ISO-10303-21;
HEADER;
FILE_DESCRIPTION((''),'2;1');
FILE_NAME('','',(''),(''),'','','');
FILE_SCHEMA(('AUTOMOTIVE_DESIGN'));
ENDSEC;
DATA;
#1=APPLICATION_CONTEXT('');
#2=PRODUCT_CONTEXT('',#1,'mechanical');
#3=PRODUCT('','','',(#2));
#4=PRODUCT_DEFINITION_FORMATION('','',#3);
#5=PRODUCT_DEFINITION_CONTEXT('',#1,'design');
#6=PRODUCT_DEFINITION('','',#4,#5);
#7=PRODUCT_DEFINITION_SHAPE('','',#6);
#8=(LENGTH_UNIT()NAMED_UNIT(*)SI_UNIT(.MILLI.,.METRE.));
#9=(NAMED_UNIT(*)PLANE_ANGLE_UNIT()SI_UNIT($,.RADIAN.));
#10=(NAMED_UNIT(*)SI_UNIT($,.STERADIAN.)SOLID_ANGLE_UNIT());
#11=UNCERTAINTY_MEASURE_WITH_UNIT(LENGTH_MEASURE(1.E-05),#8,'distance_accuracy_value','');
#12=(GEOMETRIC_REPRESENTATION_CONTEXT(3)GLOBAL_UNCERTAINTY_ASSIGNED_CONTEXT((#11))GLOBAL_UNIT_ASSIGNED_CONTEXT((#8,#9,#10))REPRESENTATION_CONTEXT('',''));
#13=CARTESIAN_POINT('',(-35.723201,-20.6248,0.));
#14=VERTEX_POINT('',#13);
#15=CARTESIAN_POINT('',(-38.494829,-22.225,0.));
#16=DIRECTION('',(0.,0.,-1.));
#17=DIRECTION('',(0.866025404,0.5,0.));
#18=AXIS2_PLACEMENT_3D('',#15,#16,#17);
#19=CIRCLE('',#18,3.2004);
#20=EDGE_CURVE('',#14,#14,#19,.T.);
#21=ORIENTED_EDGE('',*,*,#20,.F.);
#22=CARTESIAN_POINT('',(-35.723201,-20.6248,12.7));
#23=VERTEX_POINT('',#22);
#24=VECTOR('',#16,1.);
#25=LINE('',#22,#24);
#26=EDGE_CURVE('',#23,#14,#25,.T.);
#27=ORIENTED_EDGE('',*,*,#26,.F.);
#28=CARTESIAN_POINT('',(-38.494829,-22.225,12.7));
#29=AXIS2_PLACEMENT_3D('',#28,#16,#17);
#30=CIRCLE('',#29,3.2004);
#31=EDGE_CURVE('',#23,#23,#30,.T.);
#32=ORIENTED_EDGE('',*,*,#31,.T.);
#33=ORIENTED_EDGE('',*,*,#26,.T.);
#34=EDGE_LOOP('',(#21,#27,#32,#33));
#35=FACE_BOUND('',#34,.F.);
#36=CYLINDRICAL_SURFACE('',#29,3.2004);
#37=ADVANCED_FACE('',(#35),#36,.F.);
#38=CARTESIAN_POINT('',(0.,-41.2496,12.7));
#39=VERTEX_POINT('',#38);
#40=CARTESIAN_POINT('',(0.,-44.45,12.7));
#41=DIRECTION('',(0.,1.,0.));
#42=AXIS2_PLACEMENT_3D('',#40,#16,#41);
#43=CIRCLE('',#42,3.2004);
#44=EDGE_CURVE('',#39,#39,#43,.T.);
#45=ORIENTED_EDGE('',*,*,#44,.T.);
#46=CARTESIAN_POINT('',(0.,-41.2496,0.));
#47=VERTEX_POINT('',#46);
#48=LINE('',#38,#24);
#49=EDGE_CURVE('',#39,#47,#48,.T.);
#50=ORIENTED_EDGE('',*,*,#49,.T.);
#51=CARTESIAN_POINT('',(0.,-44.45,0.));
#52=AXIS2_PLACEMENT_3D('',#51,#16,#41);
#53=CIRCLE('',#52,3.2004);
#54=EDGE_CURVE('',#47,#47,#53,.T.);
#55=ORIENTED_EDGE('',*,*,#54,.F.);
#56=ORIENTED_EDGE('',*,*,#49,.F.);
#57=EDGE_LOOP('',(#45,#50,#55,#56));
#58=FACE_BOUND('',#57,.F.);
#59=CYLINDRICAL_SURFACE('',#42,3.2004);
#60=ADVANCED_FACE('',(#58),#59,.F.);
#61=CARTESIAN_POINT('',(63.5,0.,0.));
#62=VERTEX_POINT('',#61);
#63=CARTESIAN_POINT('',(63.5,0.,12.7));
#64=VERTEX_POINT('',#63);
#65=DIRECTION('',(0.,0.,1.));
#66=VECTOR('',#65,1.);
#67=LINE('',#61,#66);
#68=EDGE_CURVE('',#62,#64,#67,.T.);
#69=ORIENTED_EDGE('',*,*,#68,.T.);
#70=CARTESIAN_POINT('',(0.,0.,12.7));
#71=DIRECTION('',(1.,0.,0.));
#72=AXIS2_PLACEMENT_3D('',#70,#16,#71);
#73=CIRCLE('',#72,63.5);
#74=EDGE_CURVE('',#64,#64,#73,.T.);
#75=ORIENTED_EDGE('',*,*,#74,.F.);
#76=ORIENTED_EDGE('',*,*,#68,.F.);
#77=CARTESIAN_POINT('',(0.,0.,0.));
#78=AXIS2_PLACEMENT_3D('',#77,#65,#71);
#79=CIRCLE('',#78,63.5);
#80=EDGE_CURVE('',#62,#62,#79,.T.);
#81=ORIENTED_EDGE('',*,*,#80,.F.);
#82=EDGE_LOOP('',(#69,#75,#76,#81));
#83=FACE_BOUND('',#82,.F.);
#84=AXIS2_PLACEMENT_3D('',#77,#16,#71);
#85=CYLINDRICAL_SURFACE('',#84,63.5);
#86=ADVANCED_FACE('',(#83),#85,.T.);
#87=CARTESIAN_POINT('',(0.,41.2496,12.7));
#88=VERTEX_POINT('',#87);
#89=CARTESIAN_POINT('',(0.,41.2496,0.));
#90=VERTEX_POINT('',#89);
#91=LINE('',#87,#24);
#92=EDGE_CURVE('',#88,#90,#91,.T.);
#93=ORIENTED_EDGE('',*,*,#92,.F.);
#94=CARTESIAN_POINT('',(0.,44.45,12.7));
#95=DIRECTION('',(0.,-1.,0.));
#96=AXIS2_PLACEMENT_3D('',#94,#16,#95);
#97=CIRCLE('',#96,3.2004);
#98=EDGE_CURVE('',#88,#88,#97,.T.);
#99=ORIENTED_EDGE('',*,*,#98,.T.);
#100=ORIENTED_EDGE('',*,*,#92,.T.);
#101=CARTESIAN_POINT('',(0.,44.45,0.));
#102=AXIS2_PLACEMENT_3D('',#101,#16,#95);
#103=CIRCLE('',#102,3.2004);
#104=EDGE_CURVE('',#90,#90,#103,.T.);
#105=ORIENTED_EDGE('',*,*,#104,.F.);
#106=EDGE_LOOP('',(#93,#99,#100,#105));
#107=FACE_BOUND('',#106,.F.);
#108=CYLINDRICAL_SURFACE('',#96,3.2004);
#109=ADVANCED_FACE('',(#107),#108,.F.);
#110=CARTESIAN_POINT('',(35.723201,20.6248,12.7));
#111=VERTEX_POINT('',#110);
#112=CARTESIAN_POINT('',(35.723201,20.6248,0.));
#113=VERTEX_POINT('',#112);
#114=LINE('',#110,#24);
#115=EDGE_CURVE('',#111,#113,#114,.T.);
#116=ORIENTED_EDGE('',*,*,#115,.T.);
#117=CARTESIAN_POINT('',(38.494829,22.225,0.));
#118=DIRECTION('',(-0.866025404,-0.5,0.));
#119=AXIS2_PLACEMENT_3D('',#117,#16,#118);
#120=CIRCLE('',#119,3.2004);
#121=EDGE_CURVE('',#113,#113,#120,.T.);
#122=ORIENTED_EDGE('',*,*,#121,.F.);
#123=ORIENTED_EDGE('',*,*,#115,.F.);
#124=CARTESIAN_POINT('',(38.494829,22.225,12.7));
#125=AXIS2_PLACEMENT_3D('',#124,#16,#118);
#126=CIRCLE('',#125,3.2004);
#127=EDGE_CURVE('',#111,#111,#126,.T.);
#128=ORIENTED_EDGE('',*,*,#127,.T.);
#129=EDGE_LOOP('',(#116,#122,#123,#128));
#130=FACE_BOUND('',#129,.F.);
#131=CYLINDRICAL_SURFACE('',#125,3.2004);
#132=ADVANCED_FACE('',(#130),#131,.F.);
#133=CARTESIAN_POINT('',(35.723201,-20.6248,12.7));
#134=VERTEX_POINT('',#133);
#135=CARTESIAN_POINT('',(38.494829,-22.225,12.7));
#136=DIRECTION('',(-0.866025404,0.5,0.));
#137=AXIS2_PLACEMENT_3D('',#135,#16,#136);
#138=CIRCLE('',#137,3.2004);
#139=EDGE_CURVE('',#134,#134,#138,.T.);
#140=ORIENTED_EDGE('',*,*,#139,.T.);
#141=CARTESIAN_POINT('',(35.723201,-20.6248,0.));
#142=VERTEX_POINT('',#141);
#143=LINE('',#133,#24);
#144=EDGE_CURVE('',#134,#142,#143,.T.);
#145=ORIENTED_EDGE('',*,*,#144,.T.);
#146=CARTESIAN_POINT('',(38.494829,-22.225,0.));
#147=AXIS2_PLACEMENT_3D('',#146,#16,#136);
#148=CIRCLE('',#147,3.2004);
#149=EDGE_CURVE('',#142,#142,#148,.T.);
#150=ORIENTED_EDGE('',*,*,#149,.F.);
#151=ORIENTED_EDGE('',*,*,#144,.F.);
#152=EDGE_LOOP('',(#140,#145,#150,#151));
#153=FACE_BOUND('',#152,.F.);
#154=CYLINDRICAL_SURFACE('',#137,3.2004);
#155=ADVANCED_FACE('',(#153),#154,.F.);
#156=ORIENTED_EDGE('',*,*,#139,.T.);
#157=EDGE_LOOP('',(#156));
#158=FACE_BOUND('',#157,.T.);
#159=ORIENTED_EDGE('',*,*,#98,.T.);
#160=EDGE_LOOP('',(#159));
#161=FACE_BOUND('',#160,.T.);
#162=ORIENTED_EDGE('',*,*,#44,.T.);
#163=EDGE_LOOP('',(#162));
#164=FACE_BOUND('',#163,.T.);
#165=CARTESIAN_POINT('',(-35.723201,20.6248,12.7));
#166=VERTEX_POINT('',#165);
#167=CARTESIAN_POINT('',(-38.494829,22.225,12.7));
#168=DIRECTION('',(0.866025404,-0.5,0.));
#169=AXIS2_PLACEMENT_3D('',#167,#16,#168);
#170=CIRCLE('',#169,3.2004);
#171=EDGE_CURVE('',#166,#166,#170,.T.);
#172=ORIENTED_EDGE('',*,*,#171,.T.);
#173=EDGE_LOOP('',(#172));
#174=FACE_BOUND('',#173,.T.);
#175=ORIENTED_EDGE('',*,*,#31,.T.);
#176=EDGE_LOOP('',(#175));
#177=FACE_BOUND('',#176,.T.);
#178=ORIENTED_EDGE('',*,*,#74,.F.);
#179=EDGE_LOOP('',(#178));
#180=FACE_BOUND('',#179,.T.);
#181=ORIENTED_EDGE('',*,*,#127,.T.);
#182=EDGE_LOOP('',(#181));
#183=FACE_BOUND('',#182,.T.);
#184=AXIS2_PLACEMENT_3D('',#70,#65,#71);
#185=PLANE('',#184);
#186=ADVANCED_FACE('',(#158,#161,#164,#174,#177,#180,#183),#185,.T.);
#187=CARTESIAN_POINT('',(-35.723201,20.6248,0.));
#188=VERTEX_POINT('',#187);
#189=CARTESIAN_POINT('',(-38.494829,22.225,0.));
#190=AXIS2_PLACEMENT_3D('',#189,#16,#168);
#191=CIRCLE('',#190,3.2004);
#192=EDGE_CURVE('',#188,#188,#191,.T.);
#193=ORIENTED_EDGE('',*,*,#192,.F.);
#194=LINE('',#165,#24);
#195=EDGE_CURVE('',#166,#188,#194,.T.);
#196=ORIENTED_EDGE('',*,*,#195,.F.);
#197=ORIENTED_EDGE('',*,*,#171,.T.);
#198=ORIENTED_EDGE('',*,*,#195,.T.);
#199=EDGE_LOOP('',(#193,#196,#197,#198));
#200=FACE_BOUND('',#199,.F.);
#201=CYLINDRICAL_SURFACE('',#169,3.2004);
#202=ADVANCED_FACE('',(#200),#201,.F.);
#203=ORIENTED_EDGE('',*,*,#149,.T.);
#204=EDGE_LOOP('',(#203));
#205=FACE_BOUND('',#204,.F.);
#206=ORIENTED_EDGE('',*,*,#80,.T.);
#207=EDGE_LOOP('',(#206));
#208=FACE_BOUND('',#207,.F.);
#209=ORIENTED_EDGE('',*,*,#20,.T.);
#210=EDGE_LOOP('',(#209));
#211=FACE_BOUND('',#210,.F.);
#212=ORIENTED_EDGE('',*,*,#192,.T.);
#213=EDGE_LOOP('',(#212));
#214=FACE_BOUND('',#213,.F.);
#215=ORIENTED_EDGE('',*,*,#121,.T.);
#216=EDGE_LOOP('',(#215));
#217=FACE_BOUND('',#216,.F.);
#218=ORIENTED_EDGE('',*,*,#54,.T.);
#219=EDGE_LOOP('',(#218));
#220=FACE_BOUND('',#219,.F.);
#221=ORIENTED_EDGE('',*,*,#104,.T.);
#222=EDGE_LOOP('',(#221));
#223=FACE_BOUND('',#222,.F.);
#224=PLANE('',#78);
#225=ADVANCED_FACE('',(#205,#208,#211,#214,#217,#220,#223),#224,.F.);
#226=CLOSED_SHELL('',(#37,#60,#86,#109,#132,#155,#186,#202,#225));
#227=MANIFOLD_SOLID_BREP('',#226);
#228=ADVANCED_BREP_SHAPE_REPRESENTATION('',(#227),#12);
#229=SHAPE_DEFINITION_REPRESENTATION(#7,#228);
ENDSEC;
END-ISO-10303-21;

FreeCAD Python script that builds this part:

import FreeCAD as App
import Part
import Sketcher

V = App.Vector
Q = App.Units.Quantity

doc = App.newDocument("Part")
body = doc.addObject("PartDesign::Body", "Body")

# Sketch on XY plane
sketch1 = body.newObject("Sketcher::SketchObject", "Sketch")
sketch1.AttachmentSupport = (doc.getObject("XY_Plane"), [""])
sketch1.MapMode = "FlatFace"
sketch1.addGeometry(Part.Circle(V(0, 0, 0), V(0, 0, 1), 64), False)
sketch1.addConstraint(Sketcher.Constraint("Coincident", 0, 3, -1, 1))
sketch1.addConstraint(Sketcher.Constraint("Diameter", 0, Q("5 in")))
pad1 = body.newObject("PartDesign::Pad", "Pad")
pad1.Profile = sketch1
pad1.Length = Q("0.5 in")

# Sketch on XY plane
sketch2 = body.newObject("Sketcher::SketchObject", "Sketch001")
sketch2.AttachmentSupport = (doc.getObject("XY_Plane"), [""])
sketch2.MapMode = "FlatFace"
sketch2.AttachmentOffset = App.Placement(V(0, 0, 0.5 * 25.4), App.Rotation())
sketch2.addGeometry(Part.Circle(V(0, 44.5, 0), V(0, 0, 1), 3.2), False)
sketch2.addConstraint(Sketcher.Constraint("PointOnObject", 0, 3, -2))
sketch2.addConstraint(Sketcher.Constraint("Diameter", 0, Q("0.252 in")))
sketch2.addConstraint(Sketcher.Constraint("DistanceY", -1, 1, 0, 3, Q("1.75 in")))
doc.recompute()
hole = body.newObject("PartDesign::Hole", "Hole")
hole.Profile = sketch2
hole.ThreadType = "None"
hole.Diameter = Q("0.252 in")
hole.DepthType = "ThroughAll"
doc.recompute()

polarpattern = body.newObject("PartDesign::PolarPattern", "PolarPattern")
polarpattern.Originals = [hole]
polarpattern.Axis = (doc.getObject("Z_Axis"), [""])
polarpattern.Angle = 360
polarpattern.Occurrences = 6
body.Tip = polarpattern

doc.recompute()
